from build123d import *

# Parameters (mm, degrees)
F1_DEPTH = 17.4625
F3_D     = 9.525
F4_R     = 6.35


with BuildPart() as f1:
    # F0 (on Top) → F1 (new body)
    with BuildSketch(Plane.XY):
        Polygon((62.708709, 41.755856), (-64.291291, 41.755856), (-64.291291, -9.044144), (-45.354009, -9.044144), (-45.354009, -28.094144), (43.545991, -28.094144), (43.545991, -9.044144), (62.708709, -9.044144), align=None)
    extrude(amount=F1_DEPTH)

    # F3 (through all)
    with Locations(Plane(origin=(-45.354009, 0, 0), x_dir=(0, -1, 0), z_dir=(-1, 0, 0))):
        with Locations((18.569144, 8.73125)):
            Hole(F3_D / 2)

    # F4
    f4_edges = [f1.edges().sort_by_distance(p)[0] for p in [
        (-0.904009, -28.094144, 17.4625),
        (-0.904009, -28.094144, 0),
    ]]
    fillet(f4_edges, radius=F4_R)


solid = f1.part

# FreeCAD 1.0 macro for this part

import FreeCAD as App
import Part
import Sketcher
from FreeCAD import Vector
Q = App.Units.Quantity


def edges_at(feature, points):
    """Names of the edges that pass closest to the given points."""
    edges = feature.Shape.Edges
    near = lambda p: min(range(len(edges)), key=lambda i: edges[i].distToShape(Part.Vertex(*p))[0])
    return sorted({f"Edge{near(p) + 1}" for p in points})

doc = App.newDocument("Part")
body = doc.addObject("PartDesign::Body", "Body")

# Sketch on XY plane
sketch1 = doc.addObject("Sketcher::SketchObject", "Sketch")
body.addObject(sketch1)
sketch1.AttachmentSupport = (doc.XY_Plane, [""])
sketch1.MapMode = "FlatFace"
sketch1.addGeometry([
    Part.LineSegment(Vector(63, 42, 0), Vector(-64, 42, 0)),  # 0
    Part.LineSegment(Vector(-64, 42, 0), Vector(-64, -9, 0)),  # 1
    Part.LineSegment(Vector(-64, -9, 0), Vector(-45, -9, 0)),  # 2
    Part.LineSegment(Vector(-45, -9, 0), Vector(-45, -28, 0)),  # 3
    Part.LineSegment(Vector(-45, -28, 0), Vector(44, -28, 0)),  # 4
    Part.LineSegment(Vector(44, -28, 0), Vector(44, -9, 0)),  # 5
    Part.LineSegment(Vector(44, -9, 0), Vector(63, -9, 0)),  # 6
    Part.LineSegment(Vector(63, -9, 0), Vector(63, 42, 0)),  # 7
], False)
sketch1.addConstraint([
    Sketcher.Constraint("Coincident", 0, 2, 1, 1),
    Sketcher.Constraint("Coincident", 1, 2, 2, 1),
    Sketcher.Constraint("Coincident", 2, 2, 3, 1),
    Sketcher.Constraint("Coincident", 3, 2, 4, 1),
    Sketcher.Constraint("Coincident", 4, 2, 5, 1),
    Sketcher.Constraint("Coincident", 5, 2, 6, 1),
    Sketcher.Constraint("Coincident", 6, 2, 7, 1),
    Sketcher.Constraint("Coincident", 7, 2, 0, 1),
    Sketcher.Constraint("Horizontal", 0),
    Sketcher.Constraint("Vertical", 1),
    Sketcher.Constraint("Horizontal", 2),
    Sketcher.Constraint("Vertical", 3),
    Sketcher.Constraint("Horizontal", 4),
    Sketcher.Constraint("Vertical", 5),
    Sketcher.Constraint("Horizontal", 6),
    Sketcher.Constraint("Vertical", 7),
    Sketcher.Constraint("Horizontal", 2, 2, 5, 2),
    Sketcher.Constraint("DistanceX", 0, 2, 0, 1, Q("5 in")),
    Sketcher.Constraint("DistanceY", 1, 2, 1, 1, Q("2 in")),
    Sketcher.Constraint("DistanceX", 4, 1, 4, 2, Q("3.5 in")),
    Sketcher.Constraint("DistanceY", 3, 2, 3, 1, Q("0.75 in")),
    Sketcher.Constraint("DistanceX", 2, 1, 2, 2, Q("18.937282 mm")),
    Sketcher.Constraint("DistanceX", 0, 2, -1, 1, Q("64.291291 mm")),
    Sketcher.Constraint("DistanceY", -1, 1, 0, 2, Q("41.755856 mm")),
])
pad1 = doc.addObject("PartDesign::Pad", "Pad")
body.addObject(pad1)
pad1.Profile = sketch1
pad1.Length = Q("0.6875 in")

# Sketch on YZ plane
sketch2 = doc.addObject("Sketcher::SketchObject", "Sketch001")
body.addObject(sketch2)
sketch2.AttachmentSupport = (doc.YZ_Plane, [""])
sketch2.MapMode = "FlatFace"
sketch2.AttachmentOffset = App.Placement(Vector(0, 0, -45.354009), App.Rotation())
sketch2.addGeometry(Part.Circle(Vector(-18.6, 8.7, 0), Vector(0, 0, 1), 4.8), False)
sketch2.addConstraint([
    Sketcher.Constraint("Diameter", 0, Q("0.375 in")),
    Sketcher.Constraint("DistanceY", -1, 1, 0, 3, Q("0.34375 in")),
    Sketcher.Constraint("DistanceX", 0, 3, -1, 1, Q("18.569144 mm")),
])
doc.recompute()
hole = doc.addObject("PartDesign::Hole", "Hole")
body.addObject(hole)
hole.Profile = sketch2
hole.ThreadType = "None"
hole.Diameter = Q("0.375 in")
hole.DepthType = "ThroughAll"
hole.Reversed = True
doc.recompute()

fillet = doc.addObject("PartDesign::Fillet", "Fillet")
body.addObject(fillet)
fillet.Base = (hole, edges_at(hole, [(-0.904, -28.094, 17.462), (-0.904, -28.094, 0)]))
fillet.Radius = Q("0.25 in")

doc.recompute()
